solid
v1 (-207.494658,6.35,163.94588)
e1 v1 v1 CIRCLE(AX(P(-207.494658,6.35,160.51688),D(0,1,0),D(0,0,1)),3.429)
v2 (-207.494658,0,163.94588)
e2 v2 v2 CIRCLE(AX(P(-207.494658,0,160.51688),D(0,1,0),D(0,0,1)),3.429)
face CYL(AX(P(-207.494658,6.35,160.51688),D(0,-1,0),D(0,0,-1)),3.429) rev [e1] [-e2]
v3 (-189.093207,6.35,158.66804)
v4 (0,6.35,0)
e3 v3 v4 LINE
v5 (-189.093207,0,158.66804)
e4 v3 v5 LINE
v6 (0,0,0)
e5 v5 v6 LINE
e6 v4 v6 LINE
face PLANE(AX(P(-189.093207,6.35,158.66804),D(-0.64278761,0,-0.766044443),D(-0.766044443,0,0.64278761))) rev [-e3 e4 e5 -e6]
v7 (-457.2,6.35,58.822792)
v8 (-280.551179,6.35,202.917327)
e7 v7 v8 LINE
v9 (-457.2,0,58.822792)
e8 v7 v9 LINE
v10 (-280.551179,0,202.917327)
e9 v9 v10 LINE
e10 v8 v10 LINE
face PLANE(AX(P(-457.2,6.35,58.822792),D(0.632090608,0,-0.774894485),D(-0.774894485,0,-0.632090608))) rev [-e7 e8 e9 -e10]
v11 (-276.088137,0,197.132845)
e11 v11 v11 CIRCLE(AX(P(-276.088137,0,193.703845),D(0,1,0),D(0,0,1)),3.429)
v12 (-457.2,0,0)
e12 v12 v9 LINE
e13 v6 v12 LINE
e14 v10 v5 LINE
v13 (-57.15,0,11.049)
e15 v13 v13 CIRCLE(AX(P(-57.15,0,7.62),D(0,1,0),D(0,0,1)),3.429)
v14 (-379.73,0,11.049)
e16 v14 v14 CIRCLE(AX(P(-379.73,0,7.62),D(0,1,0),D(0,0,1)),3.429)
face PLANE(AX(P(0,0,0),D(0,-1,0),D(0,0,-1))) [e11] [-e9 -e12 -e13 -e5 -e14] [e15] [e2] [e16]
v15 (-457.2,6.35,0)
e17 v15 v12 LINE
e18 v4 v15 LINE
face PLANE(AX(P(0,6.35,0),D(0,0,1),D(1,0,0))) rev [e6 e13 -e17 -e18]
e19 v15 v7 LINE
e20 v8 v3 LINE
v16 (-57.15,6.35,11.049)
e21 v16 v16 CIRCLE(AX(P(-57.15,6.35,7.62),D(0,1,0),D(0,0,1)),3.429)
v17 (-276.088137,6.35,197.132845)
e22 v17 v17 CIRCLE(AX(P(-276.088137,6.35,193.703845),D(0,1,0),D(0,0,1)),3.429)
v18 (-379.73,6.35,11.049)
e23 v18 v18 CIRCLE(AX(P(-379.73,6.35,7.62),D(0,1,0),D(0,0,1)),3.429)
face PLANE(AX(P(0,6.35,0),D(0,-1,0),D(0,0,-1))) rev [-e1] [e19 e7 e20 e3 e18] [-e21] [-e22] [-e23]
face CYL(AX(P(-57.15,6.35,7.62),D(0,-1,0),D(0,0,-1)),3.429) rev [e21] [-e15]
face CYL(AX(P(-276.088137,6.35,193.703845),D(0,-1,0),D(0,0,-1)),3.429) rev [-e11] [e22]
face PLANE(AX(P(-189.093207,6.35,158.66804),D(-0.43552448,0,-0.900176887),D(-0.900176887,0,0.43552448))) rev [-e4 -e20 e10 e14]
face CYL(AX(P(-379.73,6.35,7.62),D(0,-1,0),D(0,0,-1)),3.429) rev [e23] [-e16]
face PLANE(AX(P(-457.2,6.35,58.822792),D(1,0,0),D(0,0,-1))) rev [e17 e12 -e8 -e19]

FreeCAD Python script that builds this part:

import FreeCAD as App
import Part
import Sketcher
from FreeCAD import Vector
Q = App.Units.Quantity


def add_polygon(sketch, points):
    """Adds a closed chain of lines whose ends are joined by coincident constraints."""
    first, n = sketch.GeometryCount, len(points)
    for a, b in zip(points, points[1:] + points[:1]):
        sketch.addGeometry(Part.LineSegment(App.Vector(*a, 0), App.Vector(*b, 0)), False)
    for i in range(n):
        sketch.addConstraint(Sketcher.Constraint("Coincident", first + i, 2, first + (i + 1) % n, 1))

doc = App.newDocument("Part")
body = doc.addObject("PartDesign::Body", "Body")

# Sketch on XZ plane
sketch1 = body.newObject("Sketcher::SketchObject", "Sketch")
sketch1.AttachmentSupport = (doc.getObject("XZ_Plane"), [""])
sketch1.MapMode = "FlatFace"
add_polygon(sketch1, [(-280.551179, 202.917327), (-189.093207, 158.66804), (0, 0), (-457.2, 0), (-457.2, 58.822792)])  # lines 0-4
sketch1.addGeometry(Part.Circle(Vector(-207.494658, 160.51688, 0), Vector(0, 0, 1), 3.429), False)  # 5
sketch1.addGeometry(Part.Circle(Vector(-276.088137, 193.703845, 0), Vector(0, 0, 1), 3.429), False)  # 6
sketch1.addGeometry(Part.Circle(Vector(-57.15, 7.62, 0), Vector(0, 0, 1), 3.429), False)  # 7
sketch1.addGeometry(Part.Circle(Vector(-379.73, 7.62, 0), Vector(0, 0, 1), 3.429), False)  # 8
sketch1.addConstraint([
    Sketcher.Constraint("Horizontal", 2),
    Sketcher.Constraint("Vertical", 3),
    Sketcher.Constraint("Coincident", 1, 2, -1, 1),
    Sketcher.Constraint("Equal", 5, 6),
    Sketcher.Constraint("Equal", 6, 7),
    Sketcher.Constraint("Equal", 7, 8),
    Sketcher.Constraint("Horizontal", 7, 3, 8, 3),
    Sketcher.Constraint("Diameter", 5, Q("0.27 in")),
    Sketcher.Constraint("DistanceX", 2, 2, 2, 1, Q("18 in")),
    Sketcher.Constraint("Distance", 0, Q("4 in")),
    Sketcher.Constraint("Angle", 1, Q("-40 deg")),
    Sketcher.Constraint("DistanceY", -1, 1, 7, 3, Q("0.3 in")),
    Sketcher.Constraint("DistanceX", 8, 3, 7, 3, Q("12.7 in")),
    Sketcher.Constraint("DistanceX", 7, 3, -1, 1, Q("2.25 in")),
    Sketcher.Constraint("Distance", 4, Q("8.975 in")),
    Sketcher.Constraint("DistanceY", 3, 1, 3, 2, Q("58.822792 mm")),
    Sketcher.Constraint("Distance", 1, Q("246.843651 mm")),
    Sketcher.Constraint("DistanceY", -1, 1, 5, 3, Q("160.51688 mm")),
    Sketcher.Constraint("DistanceX", 6, 3, 5, 3, Q("68.593479 mm")),
    Sketcher.Constraint("DistanceX", 5, 3, 0, 2, Q("18.401451 mm")),
    Sketcher.Constraint("DistanceY", -1, 1, 6, 3, Q("193.703845 mm")),
])
pad1 = body.newObject("PartDesign::Pad", "Pad")
pad1.Profile = sketch1
pad1.Length = Q("0.25 in")
pad1.Reversed = True

doc.recompute()
